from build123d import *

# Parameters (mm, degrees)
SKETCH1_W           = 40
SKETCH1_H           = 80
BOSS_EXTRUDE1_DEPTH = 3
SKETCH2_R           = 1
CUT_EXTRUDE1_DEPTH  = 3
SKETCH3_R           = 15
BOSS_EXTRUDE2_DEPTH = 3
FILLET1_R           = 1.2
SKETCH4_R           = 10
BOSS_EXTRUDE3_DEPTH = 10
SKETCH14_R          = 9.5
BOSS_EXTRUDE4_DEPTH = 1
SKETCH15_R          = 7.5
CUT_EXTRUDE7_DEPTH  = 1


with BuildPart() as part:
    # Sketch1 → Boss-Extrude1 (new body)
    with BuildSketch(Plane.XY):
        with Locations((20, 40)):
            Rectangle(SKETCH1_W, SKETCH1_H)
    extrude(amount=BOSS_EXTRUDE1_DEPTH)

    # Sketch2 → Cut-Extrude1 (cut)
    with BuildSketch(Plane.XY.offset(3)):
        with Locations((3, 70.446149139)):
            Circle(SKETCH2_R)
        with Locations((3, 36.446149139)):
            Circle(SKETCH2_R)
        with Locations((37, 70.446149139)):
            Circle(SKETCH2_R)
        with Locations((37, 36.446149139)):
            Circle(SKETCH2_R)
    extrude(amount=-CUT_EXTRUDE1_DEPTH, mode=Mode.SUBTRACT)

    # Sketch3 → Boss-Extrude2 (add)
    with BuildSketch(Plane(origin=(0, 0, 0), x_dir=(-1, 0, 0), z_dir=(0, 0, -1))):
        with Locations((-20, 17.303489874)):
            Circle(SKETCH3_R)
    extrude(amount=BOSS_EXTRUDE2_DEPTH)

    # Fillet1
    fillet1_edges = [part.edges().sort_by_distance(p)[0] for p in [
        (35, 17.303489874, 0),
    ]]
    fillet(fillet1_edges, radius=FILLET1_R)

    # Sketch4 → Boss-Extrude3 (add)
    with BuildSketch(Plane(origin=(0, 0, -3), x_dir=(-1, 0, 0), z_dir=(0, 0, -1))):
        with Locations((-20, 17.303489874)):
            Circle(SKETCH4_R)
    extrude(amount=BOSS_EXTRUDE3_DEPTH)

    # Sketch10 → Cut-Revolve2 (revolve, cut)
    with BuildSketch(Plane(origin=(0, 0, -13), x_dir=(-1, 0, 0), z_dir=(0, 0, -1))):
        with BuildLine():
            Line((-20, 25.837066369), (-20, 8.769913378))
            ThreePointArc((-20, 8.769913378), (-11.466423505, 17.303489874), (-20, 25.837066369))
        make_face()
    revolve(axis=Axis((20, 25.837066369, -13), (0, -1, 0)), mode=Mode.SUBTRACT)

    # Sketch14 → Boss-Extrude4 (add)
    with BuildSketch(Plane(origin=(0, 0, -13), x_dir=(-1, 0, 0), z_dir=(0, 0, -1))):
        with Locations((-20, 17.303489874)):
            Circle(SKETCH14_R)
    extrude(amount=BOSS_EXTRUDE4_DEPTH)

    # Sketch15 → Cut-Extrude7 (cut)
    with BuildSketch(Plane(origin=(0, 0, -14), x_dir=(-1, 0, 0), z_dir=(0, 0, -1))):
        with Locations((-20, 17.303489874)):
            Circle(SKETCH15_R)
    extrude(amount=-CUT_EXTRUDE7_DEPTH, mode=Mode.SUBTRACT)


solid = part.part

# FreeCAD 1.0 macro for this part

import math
import FreeCAD as App
import Part
import Sketcher


def edges_at(feature, points):
    """Names of the edges that pass closest to the given points."""
    edges = feature.Shape.Edges
    near = lambda p: min(range(len(edges)), key=lambda i: edges[i].distToShape(Part.Vertex(*p))[0])
    return sorted({f"Edge{near(p) + 1}" for p in points})

doc = App.newDocument("Part")
body = doc.addObject("PartDesign::Body", "Body")

# Sketch on XY plane
sketch1 = body.newObject("Sketcher::SketchObject", "Sketch")
sketch1.AttachmentSupport = (doc.getObject("XY_Plane"), [""])
sketch1.MapMode = "FlatFace"
sketch1.addGeometry([
    Part.LineSegment(App.Vector(0, 80, 0), App.Vector(0, 0, 0)),
    Part.LineSegment(App.Vector(0, 0, 0), App.Vector(40, 0, 0)),
    Part.LineSegment(App.Vector(40, 0, 0), App.Vector(40, 80, 0)),
    Part.LineSegment(App.Vector(40, 80, 0), App.Vector(0, 80, 0)),
], False)
sketch1.addConstraint([
    Sketcher.Constraint("Coincident", 0, 2, 1, 1),
    Sketcher.Constraint("Coincident", 1, 2, 2, 1),
    Sketcher.Constraint("Coincident", 2, 2, 3, 1),
    Sketcher.Constraint("Coincident", 3, 2, 0, 1),
    Sketcher.Constraint("Vertical", 0),
    Sketcher.Constraint("Horizontal", 1),
    Sketcher.Constraint("Vertical", 2),
    Sketcher.Constraint("Horizontal", 3),
    Sketcher.Constraint("Coincident", 0, 2, -1, 1),
    Sketcher.Constraint("DistanceX", 1, 1, 1, 2, 40.0),
    Sketcher.Constraint("DistanceY", 0, 2, 0, 1, 80.0),
])
pad1 = body.newObject("PartDesign::Pad", "Pad")
pad1.Profile = sketch1
pad1.Length = 3

# Sketch on XY plane
sketch2 = body.newObject("Sketcher::SketchObject", "Sketch001")
sketch2.AttachmentSupport = (doc.getObject("XY_Plane"), [""])
sketch2.MapMode = "FlatFace"
sketch2.AttachmentOffset = App.Placement(App.Vector(0, 0, 3), App.Rotation())
sketch2.addGeometry([
    Part.Circle(App.Vector(3, 70.4, 0), App.Vector(0, 0, 1), 1),
    Part.Circle(App.Vector(3, 36.4, 0), App.Vector(0, 0, 1), 1),
    Part.Circle(App.Vector(37, 70.4, 0), App.Vector(0, 0, 1), 1),
    Part.Circle(App.Vector(37, 36.4, 0), App.Vector(0, 0, 1), 1),
], False)
sketch2.addConstraint([
    Sketcher.Constraint("Equal", 0, 1),
    Sketcher.Constraint("Equal", 1, 2),
    Sketcher.Constraint("Equal", 2, 3),
    Sketcher.Constraint("Horizontal", 0, 3, 2, 3),
    Sketcher.Constraint("Horizontal", 1, 3, 3, 3),
    Sketcher.Constraint("Vertical", 0, 3, 1, 3),
    Sketcher.Constraint("Vertical", 2, 3, 3, 3),
    Sketcher.Constraint("Diameter", 0, 2.0),
    Sketcher.Constraint("DistanceX", -1, 1, 0, 3, 3.0),
    Sketcher.Constraint("DistanceX", -1, 1, 2, 3, 37.0),
    Sketcher.Constraint("DistanceY", 1, 3, 0, 3, 34.0),
    Sketcher.Constraint("DistanceY", -1, 1, 0, 3, 70.446149),
])
pocket1 = body.newObject("PartDesign::Pocket", "Pocket")
pocket1.Profile = sketch2
pocket1.Length = 3

# Sketch on XY plane
sketch3 = body.newObject("Sketcher::SketchObject", "Sketch002")
sketch3.AttachmentSupport = (doc.getObject("XY_Plane"), [""])
sketch3.MapMode = "FlatFace"
sketch3.addGeometry(Part.Circle(App.Vector(20, 17, 0), App.Vector(0, 0, 1), 15), False)
sketch3.addConstraint([
    Sketcher.Constraint("Diameter", 0, 30.0),
    Sketcher.Constraint("DistanceX", -1, 1, 0, 3, 20.0),
    Sketcher.Constraint("DistanceY", -1, 1, 0, 3, 17.30349),
])
pad2 = body.newObject("PartDesign::Pad", "Pad001")
pad2.Profile = sketch3
pad2.Length = 3
pad2.Reversed = True
doc.recompute()

fillet = body.newObject("PartDesign::Fillet", "Fillet")
fillet.Base = (pad2, edges_at(pad2, [(35, 17.303, 0)]))
fillet.Radius = 1.2

# Sketch on XY plane
sketch4 = body.newObject("Sketcher::SketchObject", "Sketch003")
sketch4.AttachmentSupport = (doc.getObject("XY_Plane"), [""])
sketch4.MapMode = "FlatFace"
sketch4.AttachmentOffset = App.Placement(App.Vector(0, 0, -3), App.Rotation())
sketch4.addGeometry(Part.Circle(App.Vector(20, 17, 0), App.Vector(0, 0, 1), 10), False)
sketch4.addConstraint([
    Sketcher.Constraint("Diameter", 0, 20.0),
    Sketcher.Constraint("DistanceX", -1, 1, 0, 3, 20.0),
    Sketcher.Constraint("DistanceY", -1, 1, 0, 3, 17.30349),
])
pad3 = body.newObject("PartDesign::Pad", "Pad002")
pad3.Profile = sketch4
pad3.Length = 10
pad3.Reversed = True

# Sketch on XY plane
sketch5 = body.newObject("Sketcher::SketchObject", "Sketch004")
sketch5.AttachmentSupport = (doc.getObject("XY_Plane"), [""])
sketch5.MapMode = "FlatFace"
sketch5.AttachmentOffset = App.Placement(App.Vector(0, 0, -13), App.Rotation())
sketch5.addGeometry([
    Part.LineSegment(App.Vector(20, 26, 0), App.Vector(20, 9, 0)),
    Part.ArcOfCircle(Part.Circle(App.Vector(20, 17, 0), App.Vector(0, 0, 1), 9), math.radians(90), math.radians(270)),
], False)
sketch5.addGeometry(Part.LineSegment(App.Vector(20, 26, 0), App.Vector(20, 9, 0)), True)  # axis
sketch5.addConstraint([
    Sketcher.Constraint("Coincident", 0, 1, 1, 1),
    Sketcher.Constraint("Coincident", 1, 2, 0, 2),
    Sketcher.Constraint("Vertical", 0),
    Sketcher.Constraint("Vertical", 2),
    Sketcher.Constraint("Coincident", 2, 1, 0, 1),
    Sketcher.Constraint("Vertical", 1, 3, 0, 1),
    Sketcher.Constraint("Equal", 0, 2),
    Sketcher.Constraint("DistanceX", -1, 1, 1, 3, 20.0),
    Sketcher.Constraint("Radius", 1, 8.533576),
    Sketcher.Constraint("DistanceY", -1, 1, 1, 3, 17.30349),
])
groove = body.newObject("PartDesign::Groove", "Groove")
groove.Profile = sketch5
groove.ReferenceAxis = (sketch5, ["Axis0"])
groove.Angle = 360

# Sketch on XY plane
sketch6 = body.newObject("Sketcher::SketchObject", "Sketch005")
sketch6.AttachmentSupport = (doc.getObject("XY_Plane"), [""])
sketch6.MapMode = "FlatFace"
sketch6.AttachmentOffset = App.Placement(App.Vector(0, 0, -13), App.Rotation())
sketch6.addGeometry(Part.Circle(App.Vector(20, 17, 0), App.Vector(0, 0, 1), 10), False)
sketch6.addConstraint([
    Sketcher.Constraint("Diameter", 0, 19.0),
    Sketcher.Constraint("DistanceX", -1, 1, 0, 3, 20.0),
    Sketcher.Constraint("DistanceY", -1, 1, 0, 3, 17.30349),
])
pad4 = body.newObject("PartDesign::Pad", "Pad003")
pad4.Profile = sketch6
pad4.Length = 1
pad4.Reversed = True

# Sketch on XY plane
sketch7 = body.newObject("Sketcher::SketchObject", "Sketch006")
sketch7.AttachmentSupport = (doc.getObject("XY_Plane"), [""])
sketch7.MapMode = "FlatFace"
sketch7.AttachmentOffset = App.Placement(App.Vector(0, 0, -14), App.Rotation())
sketch7.addGeometry(Part.Circle(App.Vector(20, 17, 0), App.Vector(0, 0, 1), 8), False)
sketch7.addConstraint([
    Sketcher.Constraint("Diameter", 0, 15.0),
    Sketcher.Constraint("DistanceX", -1, 1, 0, 3, 20.0),
    Sketcher.Constraint("DistanceY", -1, 1, 0, 3, 17.30349),
])
pocket2 = body.newObject("PartDesign::Pocket", "Pocket001")
pocket2.Profile = sketch7
pocket2.Length = 1
pocket2.Reversed = True

doc.recompute()
